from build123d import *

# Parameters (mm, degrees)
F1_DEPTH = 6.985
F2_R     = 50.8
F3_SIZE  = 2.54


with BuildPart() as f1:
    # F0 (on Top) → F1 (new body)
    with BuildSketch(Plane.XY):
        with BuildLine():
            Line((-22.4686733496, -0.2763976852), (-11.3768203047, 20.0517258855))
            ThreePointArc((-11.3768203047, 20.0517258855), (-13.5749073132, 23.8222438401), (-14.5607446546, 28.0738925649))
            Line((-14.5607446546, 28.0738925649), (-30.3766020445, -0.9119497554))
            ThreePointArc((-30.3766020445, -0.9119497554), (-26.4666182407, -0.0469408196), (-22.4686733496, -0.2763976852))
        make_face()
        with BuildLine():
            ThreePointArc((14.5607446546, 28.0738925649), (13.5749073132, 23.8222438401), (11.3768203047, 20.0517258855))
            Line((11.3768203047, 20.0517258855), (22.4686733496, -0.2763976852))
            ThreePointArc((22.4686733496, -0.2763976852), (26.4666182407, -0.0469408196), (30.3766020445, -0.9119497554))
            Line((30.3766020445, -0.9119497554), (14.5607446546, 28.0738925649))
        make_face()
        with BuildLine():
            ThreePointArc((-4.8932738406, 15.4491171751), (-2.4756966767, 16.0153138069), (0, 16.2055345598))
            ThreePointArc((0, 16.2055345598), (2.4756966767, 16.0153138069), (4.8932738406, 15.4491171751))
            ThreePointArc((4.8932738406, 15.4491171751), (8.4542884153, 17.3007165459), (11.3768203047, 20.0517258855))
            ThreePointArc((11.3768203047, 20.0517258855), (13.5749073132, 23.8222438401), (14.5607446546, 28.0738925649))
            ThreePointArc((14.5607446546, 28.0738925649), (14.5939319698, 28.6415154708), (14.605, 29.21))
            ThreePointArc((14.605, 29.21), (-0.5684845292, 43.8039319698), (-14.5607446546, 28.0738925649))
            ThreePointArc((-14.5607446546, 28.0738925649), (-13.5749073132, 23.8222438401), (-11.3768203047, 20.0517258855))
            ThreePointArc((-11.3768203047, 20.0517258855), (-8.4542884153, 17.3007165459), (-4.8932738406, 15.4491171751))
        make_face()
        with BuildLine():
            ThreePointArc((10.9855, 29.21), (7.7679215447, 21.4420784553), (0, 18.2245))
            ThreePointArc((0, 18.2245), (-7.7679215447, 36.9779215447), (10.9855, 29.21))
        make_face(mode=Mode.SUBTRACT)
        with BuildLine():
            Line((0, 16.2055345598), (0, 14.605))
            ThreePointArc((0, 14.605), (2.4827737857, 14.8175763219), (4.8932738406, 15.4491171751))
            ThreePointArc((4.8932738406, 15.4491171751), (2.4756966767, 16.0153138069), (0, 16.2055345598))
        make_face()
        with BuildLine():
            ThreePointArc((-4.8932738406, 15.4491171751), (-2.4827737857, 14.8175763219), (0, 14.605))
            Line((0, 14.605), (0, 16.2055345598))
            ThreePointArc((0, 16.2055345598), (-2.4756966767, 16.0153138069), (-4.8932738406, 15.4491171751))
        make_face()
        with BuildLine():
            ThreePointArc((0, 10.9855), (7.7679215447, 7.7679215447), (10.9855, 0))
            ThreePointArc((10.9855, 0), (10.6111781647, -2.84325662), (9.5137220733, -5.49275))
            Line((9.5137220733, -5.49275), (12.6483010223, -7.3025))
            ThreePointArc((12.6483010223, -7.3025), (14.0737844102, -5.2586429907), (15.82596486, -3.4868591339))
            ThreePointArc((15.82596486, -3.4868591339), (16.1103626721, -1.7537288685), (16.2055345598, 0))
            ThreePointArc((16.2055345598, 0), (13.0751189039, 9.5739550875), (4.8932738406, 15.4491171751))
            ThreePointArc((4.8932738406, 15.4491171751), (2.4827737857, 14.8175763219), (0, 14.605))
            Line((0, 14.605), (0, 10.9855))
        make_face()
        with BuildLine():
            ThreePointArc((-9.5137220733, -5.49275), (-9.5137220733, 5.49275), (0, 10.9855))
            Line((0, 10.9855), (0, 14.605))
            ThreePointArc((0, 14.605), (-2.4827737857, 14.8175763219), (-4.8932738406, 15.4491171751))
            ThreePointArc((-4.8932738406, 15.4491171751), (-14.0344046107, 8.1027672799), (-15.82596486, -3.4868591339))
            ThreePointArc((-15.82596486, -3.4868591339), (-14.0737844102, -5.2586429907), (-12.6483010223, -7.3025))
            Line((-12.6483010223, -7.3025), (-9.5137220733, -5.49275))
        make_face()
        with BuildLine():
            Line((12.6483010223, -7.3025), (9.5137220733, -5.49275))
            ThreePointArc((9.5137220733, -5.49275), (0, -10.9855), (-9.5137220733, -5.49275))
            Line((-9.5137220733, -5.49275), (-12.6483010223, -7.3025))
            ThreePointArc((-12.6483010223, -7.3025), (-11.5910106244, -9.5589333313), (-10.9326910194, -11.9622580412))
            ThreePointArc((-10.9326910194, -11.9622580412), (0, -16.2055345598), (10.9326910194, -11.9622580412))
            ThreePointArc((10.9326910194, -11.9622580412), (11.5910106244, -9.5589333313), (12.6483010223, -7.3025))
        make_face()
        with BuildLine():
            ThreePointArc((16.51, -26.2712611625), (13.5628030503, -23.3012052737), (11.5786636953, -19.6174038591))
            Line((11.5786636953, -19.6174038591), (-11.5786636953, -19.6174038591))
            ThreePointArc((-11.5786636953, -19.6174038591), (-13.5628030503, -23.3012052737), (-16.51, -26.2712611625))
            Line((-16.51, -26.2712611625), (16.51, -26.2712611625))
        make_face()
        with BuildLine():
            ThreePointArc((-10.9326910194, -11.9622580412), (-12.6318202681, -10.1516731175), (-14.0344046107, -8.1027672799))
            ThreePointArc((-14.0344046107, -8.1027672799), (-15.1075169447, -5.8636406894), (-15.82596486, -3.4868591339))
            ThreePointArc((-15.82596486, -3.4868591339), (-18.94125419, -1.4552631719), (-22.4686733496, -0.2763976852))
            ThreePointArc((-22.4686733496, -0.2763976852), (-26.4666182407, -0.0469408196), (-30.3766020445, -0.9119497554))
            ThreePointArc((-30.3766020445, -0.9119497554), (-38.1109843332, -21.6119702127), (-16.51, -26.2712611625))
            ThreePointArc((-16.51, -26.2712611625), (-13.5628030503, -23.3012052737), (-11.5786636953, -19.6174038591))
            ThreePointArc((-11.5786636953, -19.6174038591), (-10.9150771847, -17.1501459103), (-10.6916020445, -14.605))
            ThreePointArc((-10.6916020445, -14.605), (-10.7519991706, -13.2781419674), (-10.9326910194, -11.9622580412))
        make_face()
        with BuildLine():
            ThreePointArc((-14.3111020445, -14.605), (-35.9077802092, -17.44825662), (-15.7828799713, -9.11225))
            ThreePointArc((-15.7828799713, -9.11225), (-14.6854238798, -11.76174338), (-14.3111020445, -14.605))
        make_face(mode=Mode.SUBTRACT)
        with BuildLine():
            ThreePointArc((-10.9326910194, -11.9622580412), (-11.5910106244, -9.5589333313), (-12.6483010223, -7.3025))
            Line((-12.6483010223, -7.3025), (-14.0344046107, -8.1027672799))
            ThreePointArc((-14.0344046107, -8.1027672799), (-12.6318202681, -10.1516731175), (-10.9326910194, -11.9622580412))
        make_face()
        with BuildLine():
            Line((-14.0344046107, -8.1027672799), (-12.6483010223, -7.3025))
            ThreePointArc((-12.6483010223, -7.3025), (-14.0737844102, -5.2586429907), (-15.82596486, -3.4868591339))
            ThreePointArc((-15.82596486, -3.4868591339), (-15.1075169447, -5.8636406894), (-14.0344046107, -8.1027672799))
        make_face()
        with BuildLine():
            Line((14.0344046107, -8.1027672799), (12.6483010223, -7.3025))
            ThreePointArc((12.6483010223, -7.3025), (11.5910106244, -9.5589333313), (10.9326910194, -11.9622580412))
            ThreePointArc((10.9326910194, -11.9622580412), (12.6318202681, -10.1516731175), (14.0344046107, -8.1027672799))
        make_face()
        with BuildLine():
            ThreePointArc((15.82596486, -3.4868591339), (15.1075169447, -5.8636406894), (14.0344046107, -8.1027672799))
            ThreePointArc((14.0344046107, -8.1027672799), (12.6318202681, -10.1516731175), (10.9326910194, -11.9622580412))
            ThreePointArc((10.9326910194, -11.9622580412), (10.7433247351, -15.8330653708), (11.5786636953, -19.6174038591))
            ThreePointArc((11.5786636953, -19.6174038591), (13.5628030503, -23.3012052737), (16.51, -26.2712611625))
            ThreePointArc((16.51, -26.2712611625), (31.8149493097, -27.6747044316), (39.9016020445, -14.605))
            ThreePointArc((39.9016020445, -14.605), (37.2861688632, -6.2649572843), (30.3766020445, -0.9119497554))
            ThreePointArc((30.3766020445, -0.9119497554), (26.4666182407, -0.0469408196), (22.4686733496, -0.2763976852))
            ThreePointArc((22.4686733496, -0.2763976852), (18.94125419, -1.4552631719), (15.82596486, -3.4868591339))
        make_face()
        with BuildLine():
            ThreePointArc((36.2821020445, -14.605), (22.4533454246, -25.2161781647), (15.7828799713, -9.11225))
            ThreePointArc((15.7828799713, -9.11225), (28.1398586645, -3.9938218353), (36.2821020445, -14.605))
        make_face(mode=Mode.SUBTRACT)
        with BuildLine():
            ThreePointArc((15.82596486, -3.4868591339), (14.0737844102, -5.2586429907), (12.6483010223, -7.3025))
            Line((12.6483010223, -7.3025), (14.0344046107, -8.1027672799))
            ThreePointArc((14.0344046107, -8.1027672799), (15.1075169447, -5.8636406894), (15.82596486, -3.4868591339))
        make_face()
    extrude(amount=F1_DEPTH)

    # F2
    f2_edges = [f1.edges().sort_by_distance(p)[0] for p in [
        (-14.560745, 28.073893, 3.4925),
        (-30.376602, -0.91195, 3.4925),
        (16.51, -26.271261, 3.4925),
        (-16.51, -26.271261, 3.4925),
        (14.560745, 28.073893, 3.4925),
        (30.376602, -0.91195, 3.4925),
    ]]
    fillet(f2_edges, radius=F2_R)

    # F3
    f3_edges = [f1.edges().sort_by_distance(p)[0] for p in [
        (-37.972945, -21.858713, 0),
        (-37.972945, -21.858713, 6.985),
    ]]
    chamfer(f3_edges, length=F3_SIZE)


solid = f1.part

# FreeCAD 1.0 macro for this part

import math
import FreeCAD as App
import Part
import Sketcher
Q = App.Units.Quantity


def edges_at(feature, points):
    """Names of the edges that pass closest to the given points."""
    edges = feature.Shape.Edges
    near = lambda p: min(range(len(edges)), key=lambda i: edges[i].distToShape(Part.Vertex(*p))[0])
    return sorted({f"Edge{near(p) + 1}" for p in points})

doc = App.newDocument("Part")
body = doc.addObject("PartDesign::Body", "Body")

# Sketch on XY plane
sketch1 = doc.addObject("Sketcher::SketchObject", "Sketch")
body.addObject(sketch1)
sketch1.AttachmentSupport = (doc.XY_Plane, [""])
sketch1.MapMode = "FlatFace"
sketch1.addGeometry(Part.LineSegment(App.Vector(30.4, -0.9, 0), App.Vector(14.6, 28.1, 0)), False)
sketch1.addGeometry(Part.ArcOfCircle(Part.Circle(App.Vector(0, 29.2, 0), App.Vector(0, 0, 1), 14.6), math.radians(-4.46), math.radians(0)), False)
sketch1.addGeometry(Part.ArcOfCircle(Part.Circle(App.Vector(0, 29.2, 0), App.Vector(0, 0, 1), 14.6), math.radians(0), math.radians(184)), False)
sketch1.addGeometry(Part.LineSegment(App.Vector(-14.6, 28.1, 0), App.Vector(-30.4, -0.9, 0)), False)
sketch1.addGeometry(Part.ArcOfCircle(Part.Circle(App.Vector(-25.3, -14.6, 0), App.Vector(0, 0, 1), 14.6), math.radians(110), math.radians(307)), False)
sketch1.addGeometry(Part.LineSegment(App.Vector(-16.5, -26.3, 0), App.Vector(16.5, -26.3, 0)), False)
sketch1.addGeometry(Part.ArcOfCircle(Part.Circle(App.Vector(25.3, -14.6, 0), App.Vector(0, 0, 1), 14.6), math.radians(-127), math.radians(0)), False)
sketch1.addGeometry(Part.ArcOfCircle(Part.Circle(App.Vector(25.3, -14.6, 0), App.Vector(0, 0, 1), 14.6), math.radians(0), math.radians(70)), False)
sketch1.addGeometry(Part.ArcOfCircle(Part.Circle(App.Vector(-25.3, -14.6, 0), App.Vector(0, 0, 1), 11), math.radians(0), math.radians(30)), False)
sketch1.addGeometry(Part.ArcOfCircle(Part.Circle(App.Vector(-25.3, -14.6, 0), App.Vector(0, 0, 1), 11), math.radians(30), math.radians(360)), False)
sketch1.addGeometry(Part.ArcOfCircle(Part.Circle(App.Vector(-25.3, -14.6, 0), App.Vector(0, 0, 1), 14.6), math.radians(-20), math.radians(0)), False)
sketch1.addGeometry(Part.ArcOfCircle(Part.Circle(App.Vector(-25.3, -14.6, 0), App.Vector(0, 0, 1), 14.6), math.radians(0), math.radians(10.42)), False)
sketch1.addGeometry(Part.ArcOfCircle(Part.Circle(App.Vector(0, 0, 0), App.Vector(0, 0, 1), 16.2), math.radians(-132), math.radians(-48)), False)
sketch1.addGeometry(Part.ArcOfCircle(Part.Circle(App.Vector(25.3, -14.6, 0), App.Vector(0, 0, 1), 14.6), math.radians(170), math.radians(200)), False)
sketch1.addGeometry(Part.LineSegment(App.Vector(11.6, -19.6, 0), App.Vector(-11.6, -19.6, 0)), False)
sketch1.addGeometry(Part.ArcOfCircle(Part.Circle(App.Vector(0, 0, 0), App.Vector(0, 0, 1), 11), math.radians(90), math.radians(210)), False)
sketch1.addGeometry(Part.ArcOfCircle(Part.Circle(App.Vector(0, 0, 0), App.Vector(0, 0, 1), 11), math.radians(0), math.radians(90)), False)
sketch1.addGeometry(Part.ArcOfCircle(Part.Circle(App.Vector(0, 0, 0), App.Vector(0, 0, 1), 11), math.radians(-30), math.radians(0)), False)
sketch1.addGeometry(Part.ArcOfCircle(Part.Circle(App.Vector(0, 0, 0), App.Vector(0, 0, 1), 11), math.radians(-150), math.radians(-30)), False)
sketch1.addGeometry(Part.ArcOfCircle(Part.Circle(App.Vector(25.3, -14.6, 0), App.Vector(0, 0, 1), 11), math.radians(0), math.radians(150)), False)
sketch1.addGeometry(Part.ArcOfCircle(Part.Circle(App.Vector(25.3, -14.6, 0), App.Vector(0, 0, 1), 11), math.radians(150), math.radians(360)), False)
sketch1.addGeometry(Part.ArcOfCircle(Part.Circle(App.Vector(0, 0, 0), App.Vector(0, 0, 1), 16.2), math.radians(108), math.radians(192)), False)
sketch1.addGeometry(Part.ArcOfCircle(Part.Circle(App.Vector(-25.3, -14.6, 0), App.Vector(0, 0, 1), 14.6), math.radians(50), math.radians(79)), False)
sketch1.addGeometry(Part.LineSegment(App.Vector(-22.5, -0.3, 0), App.Vector(-11.4, 20.1, 0)), False)
sketch1.addGeometry(Part.ArcOfCircle(Part.Circle(App.Vector(0, 29.2, 0), App.Vector(0, 0, 1), 14.6), math.radians(-141), math.radians(-110)), False)
sketch1.addGeometry(Part.ArcOfCircle(Part.Circle(App.Vector(25.3, -14.6, 0), App.Vector(0, 0, 1), 14.6), math.radians(101), math.radians(130)), False)
sketch1.addGeometry(Part.ArcOfCircle(Part.Circle(App.Vector(0, 0, 0), App.Vector(0, 0, 1), 16.2), math.radians(-12.43), math.radians(0)), False)
sketch1.addGeometry(Part.ArcOfCircle(Part.Circle(App.Vector(0, 0, 0), App.Vector(0, 0, 1), 16.2), math.radians(0), math.radians(72)), False)
sketch1.addGeometry(Part.ArcOfCircle(Part.Circle(App.Vector(0, 29.2, 0), App.Vector(0, 0, 1), 14.6), math.radians(-70), math.radians(-39)), False)
sketch1.addGeometry(Part.LineSegment(App.Vector(11.4, 20.1, 0), App.Vector(22.5, -0.3, 0)), False)
sketch1.addGeometry(Part.ArcOfCircle(Part.Circle(App.Vector(0, 29.2, 0), App.Vector(0, 0, 1), 11), math.radians(0), math.radians(270)), False)
sketch1.addGeometry(Part.ArcOfCircle(Part.Circle(App.Vector(0, 29.2, 0), App.Vector(0, 0, 1), 11), math.radians(-90), math.radians(0)), False)
sketch1.addConstraint(Sketcher.Constraint("Coincident", 0, 2, 1, 1))
sketch1.addConstraint(Sketcher.Constraint("Tangent", 1, 2, 2, 1))
sketch1.addConstraint(Sketcher.Constraint("Coincident", 2, 2, 3, 1))
sketch1.addConstraint(Sketcher.Constraint("Coincident", 3, 2, 4, 1))
sketch1.addConstraint(Sketcher.Constraint("Coincident", 4, 2, 5, 1))
sketch1.addConstraint(Sketcher.Constraint("Coincident", 5, 2, 6, 1))
sketch1.addConstraint(Sketcher.Constraint("Tangent", 6, 2, 7, 1))
sketch1.addConstraint(Sketcher.Constraint("Coincident", 7, 2, 0, 1))
sketch1.addConstraint(Sketcher.Constraint("Tangent", 8, 1, 9, 2))
sketch1.addConstraint(Sketcher.Constraint("Coincident", 9, 1, 8, 2))
sketch1.addConstraint(Sketcher.Constraint("Tangent", 10, 2, 11, 1))
sketch1.addConstraint(Sketcher.Constraint("Coincident", 11, 2, 12, 1))
sketch1.addConstraint(Sketcher.Constraint("Coincident", 12, 2, 13, 1))
sketch1.addConstraint(Sketcher.Constraint("Coincident", 13, 2, 14, 1))
sketch1.addConstraint(Sketcher.Constraint("Coincident", 14, 2, 10, 1))
sketch1.addConstraint(Sketcher.Constraint("Tangent", 15, 1, 16, 2))
sketch1.addConstraint(Sketcher.Constraint("Tangent", 16, 1, 17, 2))
sketch1.addConstraint(Sketcher.Constraint("Tangent", 17, 1, 18, 2))
sketch1.addConstraint(Sketcher.Constraint("Tangent", 18, 1, 15, 2))
sketch1.addConstraint(Sketcher.Constraint("Tangent", 19, 1, 20, 2))
sketch1.addConstraint(Sketcher.Constraint("Coincident", 20, 1, 19, 2))
sketch1.addConstraint(Sketcher.Constraint("Coincident", 21, 2, 22, 1))
sketch1.addConstraint(Sketcher.Constraint("Coincident", 22, 2, 23, 1))
sketch1.addConstraint(Sketcher.Constraint("Coincident", 23, 2, 24, 1))
sketch1.addConstraint(Sketcher.Constraint("Coincident", 24, 2, 21, 1))
sketch1.addConstraint(Sketcher.Constraint("Coincident", 25, 2, 26, 1))
sketch1.addConstraint(Sketcher.Constraint("Tangent", 26, 2, 27, 1))
sketch1.addConstraint(Sketcher.Constraint("Coincident", 27, 2, 28, 1))
sketch1.addConstraint(Sketcher.Constraint("Coincident", 28, 2, 29, 1))
sketch1.addConstraint(Sketcher.Constraint("Coincident", 29, 2, 25, 1))
sketch1.addConstraint(Sketcher.Constraint("Tangent", 30, 1, 31, 2))
sketch1.addConstraint(Sketcher.Constraint("Coincident", 31, 1, 30, 2))
sketch1.addConstraint(Sketcher.Constraint("Horizontal", 5))
sketch1.addConstraint(Sketcher.Constraint("Horizontal", 14))
sketch1.addConstraint(Sketcher.Constraint("Coincident", 12, 3, -1, 1))
sketch1.addConstraint(Sketcher.Constraint("Coincident", 15, 3, -1, 1))
sketch1.addConstraint(Sketcher.Constraint("Coincident", 21, 3, -1, 1))
sketch1.addConstraint(Sketcher.Constraint("Coincident", 26, 3, -1, 1))
sketch1.addConstraint(Sketcher.Constraint("Coincident", 8, 3, 4, 3))
sketch1.addConstraint(Sketcher.Constraint("Coincident", 10, 3, 4, 3))
sketch1.addConstraint(Sketcher.Constraint("Coincident", 13, 3, 6, 3))
sketch1.addConstraint(Sketcher.Constraint("Coincident", 19, 3, 6, 3))
sketch1.addConstraint(Sketcher.Constraint("Coincident", 22, 3, 4, 3))
sketch1.addConstraint(Sketcher.Constraint("Coincident", 24, 3, 1, 3))
sketch1.addConstraint(Sketcher.Constraint("Coincident", 25, 3, 6, 3))
sketch1.addConstraint(Sketcher.Constraint("Coincident", 28, 3, 1, 3))
sketch1.addConstraint(Sketcher.Constraint("Coincident", 30, 3, 1, 3))
sketch1.addConstraint(Sketcher.Constraint("Equal", 1, 2))
sketch1.addConstraint(Sketcher.Constraint("Equal", 2, 4))
sketch1.addConstraint(Sketcher.Constraint("Equal", 4, 6))
sketch1.addConstraint(Sketcher.Constraint("Equal", 6, 7))
sketch1.addConstraint(Sketcher.Constraint("Equal", 7, 10))
sketch1.addConstraint(Sketcher.Constraint("Equal", 10, 11))
sketch1.addConstraint(Sketcher.Constraint("Equal", 11, 13))
sketch1.addConstraint(Sketcher.Constraint("Equal", 9, 15))
sketch1.addConstraint(Sketcher.Constraint("Equal", 15, 16))
sketch1.addConstraint(Sketcher.Constraint("Equal", 18, 19))
sketch1.addConstraint(Sketcher.Constraint("Equal", 12, 21))
sketch1.addConstraint(Sketcher.Constraint("Equal", 13, 22))
sketch1.addConstraint(Sketcher.Constraint("Equal", 22, 24))
sketch1.addConstraint(Sketcher.Constraint("Equal", 24, 25))
sketch1.addConstraint(Sketcher.Constraint("Equal", 21, 26))
sketch1.addConstraint(Sketcher.Constraint("Equal", 26, 27))
sketch1.addConstraint(Sketcher.Constraint("Equal", 25, 28))
sketch1.addConstraint(Sketcher.Constraint("Equal", 20, 30))
sketch1.addConstraint(Sketcher.Constraint("Symmetric", 4, 3, 6, 3, -2))
sketch1.addConstraint(Sketcher.Constraint("Symmetric", 0, 2, 2, 2, -2))
sketch1.addConstraint(Sketcher.Constraint("PointOnObject", 15, 1, -2))
sketch1.addConstraint(Sketcher.Constraint("PointOnObject", 16, 1, -1))
sketch1.addConstraint(Sketcher.Constraint("PointOnObject", 26, 2, -1))
sketch1.addConstraint(Sketcher.Constraint("PointOnObject", 31, 1, -2))
sketch1.addConstraint(Sketcher.Constraint("Parallel", 3, 23))
sketch1.addConstraint(Sketcher.Constraint("Parallel", 0, 29))
sketch1.addConstraint(Sketcher.Constraint("Horizontal", 31, 3, 1, 2))
sketch1.addConstraint(Sketcher.Constraint("Horizontal", 25, 3, 6, 2))
sketch1.addConstraint(Sketcher.Constraint("Horizontal", 3, 2, 7, 2))
sketch1.addConstraint(Sketcher.Constraint("Horizontal", 6, 2, 8, 1))
sketch1.addConstraint(Sketcher.Constraint("Horizontal", 8, 1, 10, 2))
sketch1.addConstraint(Sketcher.Constraint("Horizontal", 17, 1, 18, 1))
sketch1.addConstraint(Sketcher.Constraint("Horizontal", 10, 2, 19, 1))
sketch1.addConstraint(Sketcher.Constraint("Horizontal", 9, 1, 20, 1))
sketch1.addConstraint(Sketcher.Constraint("Horizontal", 23, 2, 28, 2))
sketch1.addConstraint(Sketcher.Constraint("Horizontal", 1, 2, 30, 1))
sketch1.addConstraint(Sketcher.Constraint("DistanceX", 5, 1, 5, 2, Q("1.3 in")))
sketch1.addConstraint(Sketcher.Constraint("Radius", 1, Q("0.575 in")))
sketch1.addConstraint(Sketcher.Constraint("Distance", 0, Q("1.3 in")))
sketch1.addConstraint(Sketcher.Constraint("Radius", 8, Q("0.4325 in")))
sketch1.addConstraint(Sketcher.Constraint("DistanceX", 3, 2, 10, 3, Q("0.2 in")))
sketch1.addConstraint(Sketcher.Constraint("DistanceY", -1, 1, 1, 3, Q("1.15 in")))
sketch1.addConstraint(Sketcher.Constraint("DistanceY", 4, 3, -1, 1, Q("0.575 in")))
sketch1.addConstraint(Sketcher.Constraint("Radius", 12, Q("16.205535 mm")))
sketch1.addConstraint(Sketcher.Constraint("DistanceY", 9, 1, 18, 1, Q("0.1425 in")))
sketch1.addConstraint(Sketcher.Constraint("DistanceX", 4, 3, 1, 3, Q("25.296602 mm")))
sketch1.addConstraint(Sketcher.Constraint("DistanceX", 14, 2, 14, 1, Q("23.157327 mm")))
sketch1.addConstraint(Sketcher.Constraint("DistanceX", 9, 1, -1, 1, Q("15.78288 mm")))
sketch1.addConstraint(Sketcher.Constraint("DistanceX", 23, 2, -1, 1, Q("11.37682 mm")))
pad1 = doc.addObject("PartDesign::Pad", "Pad")
body.addObject(pad1)
pad1.Profile = sketch1
pad1.Length = Q("0.275 in")
doc.recompute()

fillet = doc.addObject("PartDesign::Fillet", "Fillet")
body.addObject(fillet)
fillet.Base = (pad1, edges_at(pad1, [
    (-14.561, 28.074, 3.493),
    (-30.377, -0.912, 3.493),
    (16.51, -26.271, 3.493),
    (-16.51, -26.271, 3.493),
    (14.561, 28.074, 3.493),
    (30.377, -0.912, 3.493),
]))
fillet.Radius = Q("2 in")
doc.recompute()

chamfer = doc.addObject("PartDesign::Chamfer", "Chamfer")
body.addObject(chamfer)
chamfer.Base = (fillet, edges_at(fillet, [(-37.973, -21.859, 0), (-37.973, -21.859, 6.985)]))
chamfer.Size = Q("0.1 in")

doc.recompute()
